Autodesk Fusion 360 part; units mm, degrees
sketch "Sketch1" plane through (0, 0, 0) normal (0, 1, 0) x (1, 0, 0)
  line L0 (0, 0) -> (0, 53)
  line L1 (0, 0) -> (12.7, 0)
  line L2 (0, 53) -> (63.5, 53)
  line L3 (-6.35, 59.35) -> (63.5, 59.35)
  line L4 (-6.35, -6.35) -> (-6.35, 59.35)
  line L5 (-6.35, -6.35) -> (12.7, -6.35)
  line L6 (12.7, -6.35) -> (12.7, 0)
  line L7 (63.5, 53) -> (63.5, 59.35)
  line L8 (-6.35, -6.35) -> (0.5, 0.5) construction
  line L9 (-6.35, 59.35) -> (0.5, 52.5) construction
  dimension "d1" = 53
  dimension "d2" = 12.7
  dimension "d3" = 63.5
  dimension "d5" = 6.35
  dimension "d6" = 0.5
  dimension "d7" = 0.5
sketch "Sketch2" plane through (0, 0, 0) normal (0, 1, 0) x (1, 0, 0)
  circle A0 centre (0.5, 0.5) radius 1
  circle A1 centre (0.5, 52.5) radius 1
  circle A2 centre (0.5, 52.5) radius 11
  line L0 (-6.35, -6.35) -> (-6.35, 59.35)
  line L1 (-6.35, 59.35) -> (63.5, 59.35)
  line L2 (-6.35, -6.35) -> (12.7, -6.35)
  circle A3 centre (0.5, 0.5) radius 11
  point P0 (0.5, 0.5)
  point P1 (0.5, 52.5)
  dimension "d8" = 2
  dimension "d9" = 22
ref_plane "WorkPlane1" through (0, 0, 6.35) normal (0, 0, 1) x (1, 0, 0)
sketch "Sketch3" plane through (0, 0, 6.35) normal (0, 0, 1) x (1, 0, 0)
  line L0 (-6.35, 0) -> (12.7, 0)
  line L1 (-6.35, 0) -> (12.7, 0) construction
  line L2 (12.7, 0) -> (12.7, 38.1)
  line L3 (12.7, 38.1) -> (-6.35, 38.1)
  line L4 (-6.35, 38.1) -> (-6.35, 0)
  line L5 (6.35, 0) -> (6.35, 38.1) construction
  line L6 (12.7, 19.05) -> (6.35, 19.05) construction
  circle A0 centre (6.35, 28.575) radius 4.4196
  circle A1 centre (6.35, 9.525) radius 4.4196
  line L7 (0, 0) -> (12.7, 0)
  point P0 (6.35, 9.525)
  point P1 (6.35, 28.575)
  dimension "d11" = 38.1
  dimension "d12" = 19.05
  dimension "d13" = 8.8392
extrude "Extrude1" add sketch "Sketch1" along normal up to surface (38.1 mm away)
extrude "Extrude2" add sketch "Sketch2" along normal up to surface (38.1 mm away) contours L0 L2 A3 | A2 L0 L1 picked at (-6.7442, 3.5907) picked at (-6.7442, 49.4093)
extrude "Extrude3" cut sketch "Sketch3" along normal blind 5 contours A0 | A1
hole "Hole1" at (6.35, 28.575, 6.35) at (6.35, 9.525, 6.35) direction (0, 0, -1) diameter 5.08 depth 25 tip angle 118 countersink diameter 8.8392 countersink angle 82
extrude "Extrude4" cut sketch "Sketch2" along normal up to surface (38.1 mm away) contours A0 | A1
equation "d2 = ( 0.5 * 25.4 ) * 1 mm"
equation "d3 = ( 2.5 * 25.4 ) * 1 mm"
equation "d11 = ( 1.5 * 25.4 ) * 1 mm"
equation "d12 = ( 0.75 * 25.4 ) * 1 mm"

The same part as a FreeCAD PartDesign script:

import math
import FreeCAD as App
import Part
import Sketcher
Q = App.Units.Quantity

doc = App.newDocument("Part")
body = doc.addObject("PartDesign::Body", "Body")

sketch1 = body.newObject("Sketcher::SketchObject", "Sketch")
sketch1.AttachmentSupport = (doc.getObject("XZ_Plane"), [""])
sketch1.MapMode = "FlatFace"
sketch1.addGeometry([
    Part.LineSegment(App.Vector(12.7, 0, 0), App.Vector(0, 0, 0)),
    Part.LineSegment(App.Vector(0, 0, 0), App.Vector(0, -53, 0)),
    Part.LineSegment(App.Vector(0, -53, 0), App.Vector(63.5, -53, 0)),
    Part.LineSegment(App.Vector(63.5, -53, 0), App.Vector(63.5, -59.35, 0)),
    Part.LineSegment(App.Vector(63.5, -59.35, 0), App.Vector(-6.35, -59.35, 0)),
    Part.LineSegment(App.Vector(-6.35, -59.35, 0), App.Vector(-6.35, 6.35, 0)),
    Part.LineSegment(App.Vector(-6.35, 6.35, 0), App.Vector(12.7, 6.35, 0)),
    Part.LineSegment(App.Vector(12.7, 6.35, 0), App.Vector(12.7, 0, 0)),
], False)
sketch1.addConstraint([
    Sketcher.Constraint("Coincident", 0, 2, 1, 1),
    Sketcher.Constraint("Coincident", 1, 2, 2, 1),
    Sketcher.Constraint("Coincident", 2, 2, 3, 1),
    Sketcher.Constraint("Coincident", 3, 2, 4, 1),
    Sketcher.Constraint("Coincident", 4, 2, 5, 1),
    Sketcher.Constraint("Coincident", 5, 2, 6, 1),
    Sketcher.Constraint("Coincident", 6, 2, 7, 1),
    Sketcher.Constraint("Coincident", 7, 2, 0, 1),
    Sketcher.Constraint("Horizontal", 0),
    Sketcher.Constraint("Vertical", 1),
    Sketcher.Constraint("Horizontal", 2),
    Sketcher.Constraint("Vertical", 3),
    Sketcher.Constraint("Horizontal", 4),
    Sketcher.Constraint("Vertical", 5),
    Sketcher.Constraint("Horizontal", 6),
    Sketcher.Constraint("Vertical", 7),
    Sketcher.Constraint("Coincident", 0, 2, -1, 1),
    Sketcher.Constraint("Equal", 3, 7),
    Sketcher.Constraint("DistanceX", 0, 2, 0, 1, Q("0.5 in")),
    Sketcher.Constraint("DistanceX", 2, 1, 2, 2, Q("2.5 in")),
    Sketcher.Constraint("DistanceY", 3, 2, 3, 1, Q("0.25 in")),
    Sketcher.Constraint("DistanceX", 4, 2, -1, 1, Q("0.25 in")),
    Sketcher.Constraint("DistanceY", 1, 2, 1, 1, Q("53 mm")),
])
pad1 = body.newObject("PartDesign::Pad", "Pad")
pad1.Profile = sketch1
pad1.Length = Q("1.5 in")
pad1.Reversed = True

sketch2 = body.newObject("Sketcher::SketchObject", "Sketch001")
sketch2.AttachmentSupport = (doc.getObject("XZ_Plane"), [""])
sketch2.MapMode = "FlatFace"
sketch2.addGeometry([
    Part.LineSegment(App.Vector(-6.35, 6.35, 0), App.Vector(-6.35, -9.106829, 0)),
    Part.ArcOfCircle(Part.Circle(App.Vector(0.5, -0.5, 0), App.Vector(0, 0, 1), 11), math.radians(38.515569), math.radians(231.484431)),
    Part.LineSegment(App.Vector(9.106829, 6.35, 0), App.Vector(-6.35, 6.35, 0)),
    Part.LineSegment(App.Vector(-6.35, -59.35, 0), App.Vector(9.106829, -59.35, 0)),
    Part.ArcOfCircle(Part.Circle(App.Vector(0.5, -52.5, 0), App.Vector(0, 0, 1), 11), math.radians(128.515569), math.radians(321.484431)),
    Part.LineSegment(App.Vector(-6.35, -43.893171, 0), App.Vector(-6.35, -59.35, 0)),
], False)
sketch2.addConstraint([
    Sketcher.Constraint("Coincident", 0, 2, 1, 2),
    Sketcher.Constraint("Coincident", 1, 1, 2, 1),
    Sketcher.Constraint("Coincident", 2, 2, 0, 1),
    Sketcher.Constraint("Coincident", 3, 2, 4, 2),
    Sketcher.Constraint("Coincident", 4, 1, 5, 1),
    Sketcher.Constraint("Coincident", 5, 2, 3, 1),
    Sketcher.Constraint("Vertical", 0),
    Sketcher.Constraint("Horizontal", 2),
    Sketcher.Constraint("Horizontal", 3),
    Sketcher.Constraint("Vertical", 5),
    Sketcher.Constraint("Equal", 1, 4),
    Sketcher.Constraint("Vertical", 1, 3, 4, 3),
    Sketcher.Constraint("Vertical", 1, 1, 3, 2),
    Sketcher.Constraint("Vertical", 2, 2, 4, 1),
    Sketcher.Constraint("Equal", 3, 0),
    Sketcher.Constraint("Radius", 1, Q("11 mm")),
    Sketcher.Constraint("DistanceX", 0, 2, -1, 1, Q("0.25 in")),
    Sketcher.Constraint("DistanceY", -1, 1, 1, 1, Q("0.25 in")),
    Sketcher.Constraint("DistanceX", 2, 2, 2, 1, Q("15.4568 mm")),
    Sketcher.Constraint("DistanceY", 4, 3, 0, 2, Q("1.7084 in")),
])
pad2 = body.newObject("PartDesign::Pad", "Pad001")
pad2.Profile = sketch2
pad2.Length = Q("1.5 in")
pad2.Reversed = True

sketch3 = body.newObject("Sketcher::SketchObject", "Sketch002")
sketch3.AttachmentSupport = (doc.getObject("XY_Plane"), [""])
sketch3.MapMode = "FlatFace"
sketch3.AttachmentOffset = App.Placement(App.Vector(0, 0, 0.25 * 25.4), App.Rotation())
sketch3.addGeometry([
    Part.Circle(App.Vector(6.35, 28.575, 0), App.Vector(0, 0, 1), 4.4196),
    Part.Circle(App.Vector(6.35, 9.525, 0), App.Vector(0, 0, 1), 4.4196),
], False)
sketch3.addConstraint([
    Sketcher.Constraint("Equal", 0, 1),
    Sketcher.Constraint("Vertical", 0, 3, 1, 3),
    Sketcher.Constraint("Diameter", 0, Q("0.348 in")),
    Sketcher.Constraint("DistanceY", 1, 3, 0, 3, Q("0.75 in")),
    Sketcher.Constraint("DistanceX", -1, 1, 0, 3, Q("0.25 in")),
    Sketcher.Constraint("DistanceY", -1, 1, 0, 3, Q("1.125 in")),
])
pocket1 = body.newObject("PartDesign::Pocket", "Pocket")
pocket1.Profile = sketch3
pocket1.Length = 5
pocket1.Reversed = True

sketch4 = body.newObject("Sketcher::SketchObject", "Sketch003")
sketch4.AttachmentSupport = (doc.getObject("XY_Plane"), [""])
sketch4.MapMode = "FlatFace"
sketch4.AttachmentOffset = App.Placement(App.Vector(0, 0, 0.25 * 25.4), App.Rotation())
sketch4.addGeometry([
    Part.Circle(App.Vector(6.35, 28.575, 0), App.Vector(0, 0, 1), 2.54),
    Part.Circle(App.Vector(6.35, 9.525, 0), App.Vector(0, 0, 1), 2.54),
], False)
sketch4.addConstraint([
    Sketcher.Constraint("Equal", 0, 1),
    Sketcher.Constraint("Vertical", 0, 3, 1, 3),
    Sketcher.Constraint("Diameter", 0, Q("0.2 in")),
    Sketcher.Constraint("DistanceX", -1, 1, 0, 3, Q("0.25 in")),
    Sketcher.Constraint("DistanceY", 1, 3, 0, 3, Q("0.75 in")),
    Sketcher.Constraint("DistanceY", -1, 1, 0, 3, Q("1.125 in")),
])
doc.recompute()
hole = body.newObject("PartDesign::Hole", "Hole")
hole.Profile = sketch4
hole.ThreadType = "None"
hole.Diameter = Q("0.2 in")
hole.DepthType = "Dimension"
hole.Depth = 25
hole.DrillPoint = "Angled"
hole.DrillPointAngle = 118
hole.HoleCutType = "Countersink"
hole.HoleCutDiameter = Q("0.348 in")
hole.HoleCutCountersinkAngle = 82

sketch5 = body.newObject("Sketcher::SketchObject", "Sketch004")
sketch5.AttachmentSupport = (doc.getObject("XZ_Plane"), [""])
sketch5.MapMode = "FlatFace"
sketch5.addGeometry([
    Part.Circle(App.Vector(0.5, -0.5, 0), App.Vector(0, 0, 1), 1),
    Part.Circle(App.Vector(0.5, -52.5, 0), App.Vector(0, 0, 1), 1),
], False)
sketch5.addConstraint([
    Sketcher.Constraint("Equal", 0, 1),
    Sketcher.Constraint("Vertical", 0, 3, 1, 3),
    Sketcher.Constraint("Diameter", 0, Q("2 mm")),
    Sketcher.Constraint("DistanceX", -1, 1, 0, 3, Q("0.5 mm")),
    Sketcher.Constraint("DistanceY", 0, 3, -1, 1, Q("0.5 mm")),
    Sketcher.Constraint("DistanceY", 1, 3, -1, 1, Q("52.5 mm")),
])
pocket2 = body.newObject("PartDesign::Pocket", "Pocket001")
pocket2.Profile = sketch5
pocket2.Length = Q("1.5 in")

doc.recompute()
